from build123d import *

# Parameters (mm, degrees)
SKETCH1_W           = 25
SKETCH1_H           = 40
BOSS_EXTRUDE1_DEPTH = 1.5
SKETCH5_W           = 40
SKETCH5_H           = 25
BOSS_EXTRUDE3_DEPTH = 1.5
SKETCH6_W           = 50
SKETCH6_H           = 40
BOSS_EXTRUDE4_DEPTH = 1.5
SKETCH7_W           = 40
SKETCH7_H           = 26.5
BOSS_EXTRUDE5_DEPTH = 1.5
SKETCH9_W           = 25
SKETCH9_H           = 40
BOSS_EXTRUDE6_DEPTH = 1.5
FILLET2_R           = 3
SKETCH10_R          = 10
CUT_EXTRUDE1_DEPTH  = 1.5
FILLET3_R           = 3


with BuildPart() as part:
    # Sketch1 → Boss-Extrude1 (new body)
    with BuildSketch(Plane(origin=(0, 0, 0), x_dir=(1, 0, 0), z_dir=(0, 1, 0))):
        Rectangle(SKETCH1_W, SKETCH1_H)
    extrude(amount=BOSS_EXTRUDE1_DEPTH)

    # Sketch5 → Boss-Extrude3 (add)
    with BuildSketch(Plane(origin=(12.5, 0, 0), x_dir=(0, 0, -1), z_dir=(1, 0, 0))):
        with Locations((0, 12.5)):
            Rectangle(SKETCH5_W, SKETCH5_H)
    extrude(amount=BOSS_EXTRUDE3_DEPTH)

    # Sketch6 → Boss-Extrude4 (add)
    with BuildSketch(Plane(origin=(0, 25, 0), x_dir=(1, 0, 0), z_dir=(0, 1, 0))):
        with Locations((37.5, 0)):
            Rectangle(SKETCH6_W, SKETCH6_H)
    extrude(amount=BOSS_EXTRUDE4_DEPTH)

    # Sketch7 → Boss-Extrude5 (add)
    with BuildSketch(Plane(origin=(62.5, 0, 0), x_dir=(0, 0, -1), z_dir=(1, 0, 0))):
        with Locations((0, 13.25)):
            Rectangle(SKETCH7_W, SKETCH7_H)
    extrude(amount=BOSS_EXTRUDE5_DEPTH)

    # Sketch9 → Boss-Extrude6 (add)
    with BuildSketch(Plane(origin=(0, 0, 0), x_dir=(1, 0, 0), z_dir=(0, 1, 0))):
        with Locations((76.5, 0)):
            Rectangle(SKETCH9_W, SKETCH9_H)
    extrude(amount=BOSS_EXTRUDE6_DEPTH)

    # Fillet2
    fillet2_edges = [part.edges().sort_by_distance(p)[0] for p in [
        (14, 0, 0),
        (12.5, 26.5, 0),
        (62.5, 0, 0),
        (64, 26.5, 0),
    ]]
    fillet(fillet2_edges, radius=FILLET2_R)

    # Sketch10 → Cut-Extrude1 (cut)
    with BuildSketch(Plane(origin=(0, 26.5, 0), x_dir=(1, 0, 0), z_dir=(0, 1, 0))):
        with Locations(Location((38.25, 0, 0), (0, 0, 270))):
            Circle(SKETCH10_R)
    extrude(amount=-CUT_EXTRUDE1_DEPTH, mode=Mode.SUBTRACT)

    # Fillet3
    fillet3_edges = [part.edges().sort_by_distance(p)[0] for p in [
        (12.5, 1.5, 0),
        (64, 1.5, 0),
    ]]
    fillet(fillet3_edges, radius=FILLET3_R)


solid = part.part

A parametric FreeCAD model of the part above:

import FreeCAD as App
import Part
import Sketcher
from FreeCAD import Vector


def edges_at(feature, points):
    """Names of the edges that pass closest to the given points."""
    edges = feature.Shape.Edges
    near = lambda p: min(range(len(edges)), key=lambda i: edges[i].distToShape(Part.Vertex(*p))[0])
    return sorted({f"Edge{near(p) + 1}" for p in points})


def add_polygon(sketch, points):
    """Adds a closed chain of lines whose ends are joined by coincident constraints."""
    first, n = sketch.GeometryCount, len(points)
    for a, b in zip(points, points[1:] + points[:1]):
        sketch.addGeometry(Part.LineSegment(App.Vector(*a, 0), App.Vector(*b, 0)), False)
    for i in range(n):
        sketch.addConstraint(Sketcher.Constraint("Coincident", first + i, 2, first + (i + 1) % n, 1))

doc = App.newDocument("Part")
params = doc.addObject("Spreadsheet::Sheet", "Params")
for row, (alias, value) in enumerate([
    ("sketch1_width", "25 mm"),
    ("sketch1_height", "40 mm"),
    ("pad1_length", "1.5 mm"),
    ("sketch2_width", "25 mm"),
    ("sketch2_height", "40 mm"),
    ("pad2_length", "1.5 mm"),
    ("sketch3_width", "50 mm"),
    ("sketch3_height", "40 mm"),
    ("pad3_length", "1.5 mm"),
    ("sketch4_height", "40 mm"),
    ("sketch4_width", "26.5 mm"),
    ("pad4_length", "1.5 mm"),
    ("sketch5_width", "25 mm"),
    ("sketch5_height", "40 mm"),
    ("pad5_length", "1.5 mm"),
    ("fillet_radius", "3 mm"),
    ("sketch6_diameter", "20 mm"),
    ("pocket1_length", "1.5 mm"),
    ("fillet2_radius", "3 mm"),
], start=1):
    params.set(f"A{row}", alias)
    params.set(f"B{row}", "=" + value)
    params.setAlias(f"B{row}", alias)

body = doc.addObject("PartDesign::Body", "Body")

sketch1 = body.newObject("Sketcher::SketchObject", "Sketch")
sketch1.AttachmentSupport = (doc.getObject("XZ_Plane"), [""])
sketch1.MapMode = "FlatFace"
add_polygon(sketch1, [(-12.5, -20), (-12.5, 20), (12.5, 20), (12.5, -20)])
sketch1.addConstraint([
    Sketcher.Constraint("Vertical", 0),
    Sketcher.Constraint("Horizontal", 1),
    Sketcher.Constraint("Vertical", 2),
    Sketcher.Constraint("Horizontal", 3),
    Sketcher.Constraint("Symmetric", 0, 2, 2, 2, -1, 1),
    Sketcher.Constraint("DistanceX", 1, 1, 1, 2, 25.0),
    Sketcher.Constraint("DistanceY", 0, 1, 0, 2, 40.0),
])
sketch1.setExpression("Constraints[9]", "Params.sketch1_width")
sketch1.setExpression("Constraints[10]", "Params.sketch1_height")
pad1 = body.newObject("PartDesign::Pad", "Pad")
pad1.Profile = sketch1
pad1.setExpression("Length", "Params.pad1_length")
pad1.Reversed = True

sketch2 = body.newObject("Sketcher::SketchObject", "Sketch001")
sketch2.AttachmentSupport = (doc.getObject("YZ_Plane"), [""])
sketch2.MapMode = "FlatFace"
sketch2.AttachmentOffset = App.Placement(Vector(0, 0, 12.5), App.Rotation())
add_polygon(sketch2, [(25, 20), (0, 20), (0, -20), (25, -20)])
sketch2.addConstraint([
    Sketcher.Constraint("Horizontal", 0),
    Sketcher.Constraint("Vertical", 1),
    Sketcher.Constraint("Horizontal", 2),
    Sketcher.Constraint("Vertical", 3),
    Sketcher.Constraint("Symmetric", 0, 2, 1, 2, -1, 1),
    Sketcher.Constraint("DistanceX", 0, 2, 0, 1, 25.0),
    Sketcher.Constraint("DistanceY", 1, 2, 1, 1, 40.0),
])
sketch2.setExpression("Constraints[9]", "Params.sketch2_width")
sketch2.setExpression("Constraints[10]", "Params.sketch2_height")
pad2 = body.newObject("PartDesign::Pad", "Pad001")
pad2.Profile = sketch2
pad2.setExpression("Length", "Params.pad2_length")

sketch3 = body.newObject("Sketcher::SketchObject", "Sketch002")
sketch3.AttachmentSupport = (doc.getObject("XZ_Plane"), [""])
sketch3.MapMode = "FlatFace"
sketch3.AttachmentOffset = App.Placement(Vector(0, 0, -25), App.Rotation())
add_polygon(sketch3, [(12.5, -20), (12.5, 20), (62.5, 20), (62.5, -20)])
sketch3.addConstraint([
    Sketcher.Constraint("Vertical", 0),
    Sketcher.Constraint("Horizontal", 1),
    Sketcher.Constraint("Vertical", 2),
    Sketcher.Constraint("Horizontal", 3),
    Sketcher.Constraint("DistanceX", 1, 1, 1, 2, 50.0),
    Sketcher.Constraint("DistanceY", 0, 1, 0, 2, 40.0),
    Sketcher.Constraint("DistanceY", -1, 1, 0, 2, 20.0),
    Sketcher.Constraint("DistanceX", -1, 1, 0, 2, 12.5),
])
sketch3.setExpression("Constraints[8]", "Params.sketch3_width")
sketch3.setExpression("Constraints[9]", "Params.sketch3_height")
pad3 = body.newObject("PartDesign::Pad", "Pad002")
pad3.Profile = sketch3
pad3.setExpression("Length", "Params.pad3_length")
pad3.Reversed = True

sketch4 = body.newObject("Sketcher::SketchObject", "Sketch003")
sketch4.AttachmentSupport = (doc.getObject("YZ_Plane"), [""])
sketch4.MapMode = "FlatFace"
sketch4.AttachmentOffset = App.Placement(Vector(0, 0, 62.5), App.Rotation())
add_polygon(sketch4, [(26.5, 20), (0, 20), (0, -20), (26.5, -20)])
sketch4.addConstraint([
    Sketcher.Constraint("Horizontal", 0),
    Sketcher.Constraint("Vertical", 1),
    Sketcher.Constraint("Horizontal", 2),
    Sketcher.Constraint("Vertical", 3),
    Sketcher.Constraint("Symmetric", 0, 2, 1, 2, -1, 1),
    Sketcher.Constraint("DistanceY", 1, 2, 1, 1, 40.0),
    Sketcher.Constraint("DistanceX", 0, 2, 0, 1, 26.5),
])
sketch4.setExpression("Constraints[9]", "Params.sketch4_height")
sketch4.setExpression("Constraints[10]", "Params.sketch4_width")
pad4 = body.newObject("PartDesign::Pad", "Pad003")
pad4.Profile = sketch4
pad4.setExpression("Length", "Params.pad4_length")

sketch5 = body.newObject("Sketcher::SketchObject", "Sketch004")
sketch5.AttachmentSupport = (doc.getObject("XZ_Plane"), [""])
sketch5.MapMode = "FlatFace"
add_polygon(sketch5, [(64, -20), (64, 20), (89, 20), (89, -20)])
sketch5.addConstraint([
    Sketcher.Constraint("Vertical", 0),
    Sketcher.Constraint("Horizontal", 1),
    Sketcher.Constraint("Vertical", 2),
    Sketcher.Constraint("Horizontal", 3),
    Sketcher.Constraint("DistanceX", 1, 1, 1, 2, 25.0),
    Sketcher.Constraint("DistanceY", 0, 1, 0, 2, 40.0),
    Sketcher.Constraint("DistanceX", -1, 1, 0, 2, 64.0),
    Sketcher.Constraint("DistanceY", -1, 1, 0, 2, 20.0),
])
sketch5.setExpression("Constraints[8]", "Params.sketch5_width")
sketch5.setExpression("Constraints[9]", "Params.sketch5_height")
pad5 = body.newObject("PartDesign::Pad", "Pad004")
pad5.Profile = sketch5
pad5.setExpression("Length", "Params.pad5_length")
pad5.Reversed = True
doc.recompute()

fillet = body.newObject("PartDesign::Fillet", "Fillet")
fillet.Base = (pad5, edges_at(pad5, [
    (14, 0, 0),
    (12.5, 26.5, 0),
    (62.5, 0, 0),
    (64, 26.5, 0),
]))
fillet.setExpression("Radius", "Params.fillet_radius")

sketch6 = body.newObject("Sketcher::SketchObject", "Sketch005")
sketch6.AttachmentSupport = (doc.getObject("XZ_Plane"), [""])
sketch6.MapMode = "FlatFace"
sketch6.AttachmentOffset = App.Placement(Vector(0, 0, -26.5), App.Rotation())
sketch6.addGeometry(Part.Circle(Vector(38.25, 0, 0), Vector(0, 0, 1), 10), False)
sketch6.addConstraint([
    Sketcher.Constraint("PointOnObject", 0, 3, -1),
    Sketcher.Constraint("Diameter", 0, 20.0),
    Sketcher.Constraint("DistanceX", -1, 1, 0, 3, 38.25),
])
sketch6.setExpression("Constraints[1]", "Params.sketch6_diameter")
pocket1 = body.newObject("PartDesign::Pocket", "Pocket")
pocket1.Profile = sketch6
pocket1.setExpression("Length", "Params.pocket1_length")
pocket1.Reversed = True
doc.recompute()

fillet2 = body.newObject("PartDesign::Fillet", "Fillet001")
fillet2.Base = (pocket1, edges_at(pocket1, [(12.5, 1.5, 0), (64, 1.5, 0)]))
fillet2.setExpression("Radius", "Params.fillet2_radius")

doc.recompute()
